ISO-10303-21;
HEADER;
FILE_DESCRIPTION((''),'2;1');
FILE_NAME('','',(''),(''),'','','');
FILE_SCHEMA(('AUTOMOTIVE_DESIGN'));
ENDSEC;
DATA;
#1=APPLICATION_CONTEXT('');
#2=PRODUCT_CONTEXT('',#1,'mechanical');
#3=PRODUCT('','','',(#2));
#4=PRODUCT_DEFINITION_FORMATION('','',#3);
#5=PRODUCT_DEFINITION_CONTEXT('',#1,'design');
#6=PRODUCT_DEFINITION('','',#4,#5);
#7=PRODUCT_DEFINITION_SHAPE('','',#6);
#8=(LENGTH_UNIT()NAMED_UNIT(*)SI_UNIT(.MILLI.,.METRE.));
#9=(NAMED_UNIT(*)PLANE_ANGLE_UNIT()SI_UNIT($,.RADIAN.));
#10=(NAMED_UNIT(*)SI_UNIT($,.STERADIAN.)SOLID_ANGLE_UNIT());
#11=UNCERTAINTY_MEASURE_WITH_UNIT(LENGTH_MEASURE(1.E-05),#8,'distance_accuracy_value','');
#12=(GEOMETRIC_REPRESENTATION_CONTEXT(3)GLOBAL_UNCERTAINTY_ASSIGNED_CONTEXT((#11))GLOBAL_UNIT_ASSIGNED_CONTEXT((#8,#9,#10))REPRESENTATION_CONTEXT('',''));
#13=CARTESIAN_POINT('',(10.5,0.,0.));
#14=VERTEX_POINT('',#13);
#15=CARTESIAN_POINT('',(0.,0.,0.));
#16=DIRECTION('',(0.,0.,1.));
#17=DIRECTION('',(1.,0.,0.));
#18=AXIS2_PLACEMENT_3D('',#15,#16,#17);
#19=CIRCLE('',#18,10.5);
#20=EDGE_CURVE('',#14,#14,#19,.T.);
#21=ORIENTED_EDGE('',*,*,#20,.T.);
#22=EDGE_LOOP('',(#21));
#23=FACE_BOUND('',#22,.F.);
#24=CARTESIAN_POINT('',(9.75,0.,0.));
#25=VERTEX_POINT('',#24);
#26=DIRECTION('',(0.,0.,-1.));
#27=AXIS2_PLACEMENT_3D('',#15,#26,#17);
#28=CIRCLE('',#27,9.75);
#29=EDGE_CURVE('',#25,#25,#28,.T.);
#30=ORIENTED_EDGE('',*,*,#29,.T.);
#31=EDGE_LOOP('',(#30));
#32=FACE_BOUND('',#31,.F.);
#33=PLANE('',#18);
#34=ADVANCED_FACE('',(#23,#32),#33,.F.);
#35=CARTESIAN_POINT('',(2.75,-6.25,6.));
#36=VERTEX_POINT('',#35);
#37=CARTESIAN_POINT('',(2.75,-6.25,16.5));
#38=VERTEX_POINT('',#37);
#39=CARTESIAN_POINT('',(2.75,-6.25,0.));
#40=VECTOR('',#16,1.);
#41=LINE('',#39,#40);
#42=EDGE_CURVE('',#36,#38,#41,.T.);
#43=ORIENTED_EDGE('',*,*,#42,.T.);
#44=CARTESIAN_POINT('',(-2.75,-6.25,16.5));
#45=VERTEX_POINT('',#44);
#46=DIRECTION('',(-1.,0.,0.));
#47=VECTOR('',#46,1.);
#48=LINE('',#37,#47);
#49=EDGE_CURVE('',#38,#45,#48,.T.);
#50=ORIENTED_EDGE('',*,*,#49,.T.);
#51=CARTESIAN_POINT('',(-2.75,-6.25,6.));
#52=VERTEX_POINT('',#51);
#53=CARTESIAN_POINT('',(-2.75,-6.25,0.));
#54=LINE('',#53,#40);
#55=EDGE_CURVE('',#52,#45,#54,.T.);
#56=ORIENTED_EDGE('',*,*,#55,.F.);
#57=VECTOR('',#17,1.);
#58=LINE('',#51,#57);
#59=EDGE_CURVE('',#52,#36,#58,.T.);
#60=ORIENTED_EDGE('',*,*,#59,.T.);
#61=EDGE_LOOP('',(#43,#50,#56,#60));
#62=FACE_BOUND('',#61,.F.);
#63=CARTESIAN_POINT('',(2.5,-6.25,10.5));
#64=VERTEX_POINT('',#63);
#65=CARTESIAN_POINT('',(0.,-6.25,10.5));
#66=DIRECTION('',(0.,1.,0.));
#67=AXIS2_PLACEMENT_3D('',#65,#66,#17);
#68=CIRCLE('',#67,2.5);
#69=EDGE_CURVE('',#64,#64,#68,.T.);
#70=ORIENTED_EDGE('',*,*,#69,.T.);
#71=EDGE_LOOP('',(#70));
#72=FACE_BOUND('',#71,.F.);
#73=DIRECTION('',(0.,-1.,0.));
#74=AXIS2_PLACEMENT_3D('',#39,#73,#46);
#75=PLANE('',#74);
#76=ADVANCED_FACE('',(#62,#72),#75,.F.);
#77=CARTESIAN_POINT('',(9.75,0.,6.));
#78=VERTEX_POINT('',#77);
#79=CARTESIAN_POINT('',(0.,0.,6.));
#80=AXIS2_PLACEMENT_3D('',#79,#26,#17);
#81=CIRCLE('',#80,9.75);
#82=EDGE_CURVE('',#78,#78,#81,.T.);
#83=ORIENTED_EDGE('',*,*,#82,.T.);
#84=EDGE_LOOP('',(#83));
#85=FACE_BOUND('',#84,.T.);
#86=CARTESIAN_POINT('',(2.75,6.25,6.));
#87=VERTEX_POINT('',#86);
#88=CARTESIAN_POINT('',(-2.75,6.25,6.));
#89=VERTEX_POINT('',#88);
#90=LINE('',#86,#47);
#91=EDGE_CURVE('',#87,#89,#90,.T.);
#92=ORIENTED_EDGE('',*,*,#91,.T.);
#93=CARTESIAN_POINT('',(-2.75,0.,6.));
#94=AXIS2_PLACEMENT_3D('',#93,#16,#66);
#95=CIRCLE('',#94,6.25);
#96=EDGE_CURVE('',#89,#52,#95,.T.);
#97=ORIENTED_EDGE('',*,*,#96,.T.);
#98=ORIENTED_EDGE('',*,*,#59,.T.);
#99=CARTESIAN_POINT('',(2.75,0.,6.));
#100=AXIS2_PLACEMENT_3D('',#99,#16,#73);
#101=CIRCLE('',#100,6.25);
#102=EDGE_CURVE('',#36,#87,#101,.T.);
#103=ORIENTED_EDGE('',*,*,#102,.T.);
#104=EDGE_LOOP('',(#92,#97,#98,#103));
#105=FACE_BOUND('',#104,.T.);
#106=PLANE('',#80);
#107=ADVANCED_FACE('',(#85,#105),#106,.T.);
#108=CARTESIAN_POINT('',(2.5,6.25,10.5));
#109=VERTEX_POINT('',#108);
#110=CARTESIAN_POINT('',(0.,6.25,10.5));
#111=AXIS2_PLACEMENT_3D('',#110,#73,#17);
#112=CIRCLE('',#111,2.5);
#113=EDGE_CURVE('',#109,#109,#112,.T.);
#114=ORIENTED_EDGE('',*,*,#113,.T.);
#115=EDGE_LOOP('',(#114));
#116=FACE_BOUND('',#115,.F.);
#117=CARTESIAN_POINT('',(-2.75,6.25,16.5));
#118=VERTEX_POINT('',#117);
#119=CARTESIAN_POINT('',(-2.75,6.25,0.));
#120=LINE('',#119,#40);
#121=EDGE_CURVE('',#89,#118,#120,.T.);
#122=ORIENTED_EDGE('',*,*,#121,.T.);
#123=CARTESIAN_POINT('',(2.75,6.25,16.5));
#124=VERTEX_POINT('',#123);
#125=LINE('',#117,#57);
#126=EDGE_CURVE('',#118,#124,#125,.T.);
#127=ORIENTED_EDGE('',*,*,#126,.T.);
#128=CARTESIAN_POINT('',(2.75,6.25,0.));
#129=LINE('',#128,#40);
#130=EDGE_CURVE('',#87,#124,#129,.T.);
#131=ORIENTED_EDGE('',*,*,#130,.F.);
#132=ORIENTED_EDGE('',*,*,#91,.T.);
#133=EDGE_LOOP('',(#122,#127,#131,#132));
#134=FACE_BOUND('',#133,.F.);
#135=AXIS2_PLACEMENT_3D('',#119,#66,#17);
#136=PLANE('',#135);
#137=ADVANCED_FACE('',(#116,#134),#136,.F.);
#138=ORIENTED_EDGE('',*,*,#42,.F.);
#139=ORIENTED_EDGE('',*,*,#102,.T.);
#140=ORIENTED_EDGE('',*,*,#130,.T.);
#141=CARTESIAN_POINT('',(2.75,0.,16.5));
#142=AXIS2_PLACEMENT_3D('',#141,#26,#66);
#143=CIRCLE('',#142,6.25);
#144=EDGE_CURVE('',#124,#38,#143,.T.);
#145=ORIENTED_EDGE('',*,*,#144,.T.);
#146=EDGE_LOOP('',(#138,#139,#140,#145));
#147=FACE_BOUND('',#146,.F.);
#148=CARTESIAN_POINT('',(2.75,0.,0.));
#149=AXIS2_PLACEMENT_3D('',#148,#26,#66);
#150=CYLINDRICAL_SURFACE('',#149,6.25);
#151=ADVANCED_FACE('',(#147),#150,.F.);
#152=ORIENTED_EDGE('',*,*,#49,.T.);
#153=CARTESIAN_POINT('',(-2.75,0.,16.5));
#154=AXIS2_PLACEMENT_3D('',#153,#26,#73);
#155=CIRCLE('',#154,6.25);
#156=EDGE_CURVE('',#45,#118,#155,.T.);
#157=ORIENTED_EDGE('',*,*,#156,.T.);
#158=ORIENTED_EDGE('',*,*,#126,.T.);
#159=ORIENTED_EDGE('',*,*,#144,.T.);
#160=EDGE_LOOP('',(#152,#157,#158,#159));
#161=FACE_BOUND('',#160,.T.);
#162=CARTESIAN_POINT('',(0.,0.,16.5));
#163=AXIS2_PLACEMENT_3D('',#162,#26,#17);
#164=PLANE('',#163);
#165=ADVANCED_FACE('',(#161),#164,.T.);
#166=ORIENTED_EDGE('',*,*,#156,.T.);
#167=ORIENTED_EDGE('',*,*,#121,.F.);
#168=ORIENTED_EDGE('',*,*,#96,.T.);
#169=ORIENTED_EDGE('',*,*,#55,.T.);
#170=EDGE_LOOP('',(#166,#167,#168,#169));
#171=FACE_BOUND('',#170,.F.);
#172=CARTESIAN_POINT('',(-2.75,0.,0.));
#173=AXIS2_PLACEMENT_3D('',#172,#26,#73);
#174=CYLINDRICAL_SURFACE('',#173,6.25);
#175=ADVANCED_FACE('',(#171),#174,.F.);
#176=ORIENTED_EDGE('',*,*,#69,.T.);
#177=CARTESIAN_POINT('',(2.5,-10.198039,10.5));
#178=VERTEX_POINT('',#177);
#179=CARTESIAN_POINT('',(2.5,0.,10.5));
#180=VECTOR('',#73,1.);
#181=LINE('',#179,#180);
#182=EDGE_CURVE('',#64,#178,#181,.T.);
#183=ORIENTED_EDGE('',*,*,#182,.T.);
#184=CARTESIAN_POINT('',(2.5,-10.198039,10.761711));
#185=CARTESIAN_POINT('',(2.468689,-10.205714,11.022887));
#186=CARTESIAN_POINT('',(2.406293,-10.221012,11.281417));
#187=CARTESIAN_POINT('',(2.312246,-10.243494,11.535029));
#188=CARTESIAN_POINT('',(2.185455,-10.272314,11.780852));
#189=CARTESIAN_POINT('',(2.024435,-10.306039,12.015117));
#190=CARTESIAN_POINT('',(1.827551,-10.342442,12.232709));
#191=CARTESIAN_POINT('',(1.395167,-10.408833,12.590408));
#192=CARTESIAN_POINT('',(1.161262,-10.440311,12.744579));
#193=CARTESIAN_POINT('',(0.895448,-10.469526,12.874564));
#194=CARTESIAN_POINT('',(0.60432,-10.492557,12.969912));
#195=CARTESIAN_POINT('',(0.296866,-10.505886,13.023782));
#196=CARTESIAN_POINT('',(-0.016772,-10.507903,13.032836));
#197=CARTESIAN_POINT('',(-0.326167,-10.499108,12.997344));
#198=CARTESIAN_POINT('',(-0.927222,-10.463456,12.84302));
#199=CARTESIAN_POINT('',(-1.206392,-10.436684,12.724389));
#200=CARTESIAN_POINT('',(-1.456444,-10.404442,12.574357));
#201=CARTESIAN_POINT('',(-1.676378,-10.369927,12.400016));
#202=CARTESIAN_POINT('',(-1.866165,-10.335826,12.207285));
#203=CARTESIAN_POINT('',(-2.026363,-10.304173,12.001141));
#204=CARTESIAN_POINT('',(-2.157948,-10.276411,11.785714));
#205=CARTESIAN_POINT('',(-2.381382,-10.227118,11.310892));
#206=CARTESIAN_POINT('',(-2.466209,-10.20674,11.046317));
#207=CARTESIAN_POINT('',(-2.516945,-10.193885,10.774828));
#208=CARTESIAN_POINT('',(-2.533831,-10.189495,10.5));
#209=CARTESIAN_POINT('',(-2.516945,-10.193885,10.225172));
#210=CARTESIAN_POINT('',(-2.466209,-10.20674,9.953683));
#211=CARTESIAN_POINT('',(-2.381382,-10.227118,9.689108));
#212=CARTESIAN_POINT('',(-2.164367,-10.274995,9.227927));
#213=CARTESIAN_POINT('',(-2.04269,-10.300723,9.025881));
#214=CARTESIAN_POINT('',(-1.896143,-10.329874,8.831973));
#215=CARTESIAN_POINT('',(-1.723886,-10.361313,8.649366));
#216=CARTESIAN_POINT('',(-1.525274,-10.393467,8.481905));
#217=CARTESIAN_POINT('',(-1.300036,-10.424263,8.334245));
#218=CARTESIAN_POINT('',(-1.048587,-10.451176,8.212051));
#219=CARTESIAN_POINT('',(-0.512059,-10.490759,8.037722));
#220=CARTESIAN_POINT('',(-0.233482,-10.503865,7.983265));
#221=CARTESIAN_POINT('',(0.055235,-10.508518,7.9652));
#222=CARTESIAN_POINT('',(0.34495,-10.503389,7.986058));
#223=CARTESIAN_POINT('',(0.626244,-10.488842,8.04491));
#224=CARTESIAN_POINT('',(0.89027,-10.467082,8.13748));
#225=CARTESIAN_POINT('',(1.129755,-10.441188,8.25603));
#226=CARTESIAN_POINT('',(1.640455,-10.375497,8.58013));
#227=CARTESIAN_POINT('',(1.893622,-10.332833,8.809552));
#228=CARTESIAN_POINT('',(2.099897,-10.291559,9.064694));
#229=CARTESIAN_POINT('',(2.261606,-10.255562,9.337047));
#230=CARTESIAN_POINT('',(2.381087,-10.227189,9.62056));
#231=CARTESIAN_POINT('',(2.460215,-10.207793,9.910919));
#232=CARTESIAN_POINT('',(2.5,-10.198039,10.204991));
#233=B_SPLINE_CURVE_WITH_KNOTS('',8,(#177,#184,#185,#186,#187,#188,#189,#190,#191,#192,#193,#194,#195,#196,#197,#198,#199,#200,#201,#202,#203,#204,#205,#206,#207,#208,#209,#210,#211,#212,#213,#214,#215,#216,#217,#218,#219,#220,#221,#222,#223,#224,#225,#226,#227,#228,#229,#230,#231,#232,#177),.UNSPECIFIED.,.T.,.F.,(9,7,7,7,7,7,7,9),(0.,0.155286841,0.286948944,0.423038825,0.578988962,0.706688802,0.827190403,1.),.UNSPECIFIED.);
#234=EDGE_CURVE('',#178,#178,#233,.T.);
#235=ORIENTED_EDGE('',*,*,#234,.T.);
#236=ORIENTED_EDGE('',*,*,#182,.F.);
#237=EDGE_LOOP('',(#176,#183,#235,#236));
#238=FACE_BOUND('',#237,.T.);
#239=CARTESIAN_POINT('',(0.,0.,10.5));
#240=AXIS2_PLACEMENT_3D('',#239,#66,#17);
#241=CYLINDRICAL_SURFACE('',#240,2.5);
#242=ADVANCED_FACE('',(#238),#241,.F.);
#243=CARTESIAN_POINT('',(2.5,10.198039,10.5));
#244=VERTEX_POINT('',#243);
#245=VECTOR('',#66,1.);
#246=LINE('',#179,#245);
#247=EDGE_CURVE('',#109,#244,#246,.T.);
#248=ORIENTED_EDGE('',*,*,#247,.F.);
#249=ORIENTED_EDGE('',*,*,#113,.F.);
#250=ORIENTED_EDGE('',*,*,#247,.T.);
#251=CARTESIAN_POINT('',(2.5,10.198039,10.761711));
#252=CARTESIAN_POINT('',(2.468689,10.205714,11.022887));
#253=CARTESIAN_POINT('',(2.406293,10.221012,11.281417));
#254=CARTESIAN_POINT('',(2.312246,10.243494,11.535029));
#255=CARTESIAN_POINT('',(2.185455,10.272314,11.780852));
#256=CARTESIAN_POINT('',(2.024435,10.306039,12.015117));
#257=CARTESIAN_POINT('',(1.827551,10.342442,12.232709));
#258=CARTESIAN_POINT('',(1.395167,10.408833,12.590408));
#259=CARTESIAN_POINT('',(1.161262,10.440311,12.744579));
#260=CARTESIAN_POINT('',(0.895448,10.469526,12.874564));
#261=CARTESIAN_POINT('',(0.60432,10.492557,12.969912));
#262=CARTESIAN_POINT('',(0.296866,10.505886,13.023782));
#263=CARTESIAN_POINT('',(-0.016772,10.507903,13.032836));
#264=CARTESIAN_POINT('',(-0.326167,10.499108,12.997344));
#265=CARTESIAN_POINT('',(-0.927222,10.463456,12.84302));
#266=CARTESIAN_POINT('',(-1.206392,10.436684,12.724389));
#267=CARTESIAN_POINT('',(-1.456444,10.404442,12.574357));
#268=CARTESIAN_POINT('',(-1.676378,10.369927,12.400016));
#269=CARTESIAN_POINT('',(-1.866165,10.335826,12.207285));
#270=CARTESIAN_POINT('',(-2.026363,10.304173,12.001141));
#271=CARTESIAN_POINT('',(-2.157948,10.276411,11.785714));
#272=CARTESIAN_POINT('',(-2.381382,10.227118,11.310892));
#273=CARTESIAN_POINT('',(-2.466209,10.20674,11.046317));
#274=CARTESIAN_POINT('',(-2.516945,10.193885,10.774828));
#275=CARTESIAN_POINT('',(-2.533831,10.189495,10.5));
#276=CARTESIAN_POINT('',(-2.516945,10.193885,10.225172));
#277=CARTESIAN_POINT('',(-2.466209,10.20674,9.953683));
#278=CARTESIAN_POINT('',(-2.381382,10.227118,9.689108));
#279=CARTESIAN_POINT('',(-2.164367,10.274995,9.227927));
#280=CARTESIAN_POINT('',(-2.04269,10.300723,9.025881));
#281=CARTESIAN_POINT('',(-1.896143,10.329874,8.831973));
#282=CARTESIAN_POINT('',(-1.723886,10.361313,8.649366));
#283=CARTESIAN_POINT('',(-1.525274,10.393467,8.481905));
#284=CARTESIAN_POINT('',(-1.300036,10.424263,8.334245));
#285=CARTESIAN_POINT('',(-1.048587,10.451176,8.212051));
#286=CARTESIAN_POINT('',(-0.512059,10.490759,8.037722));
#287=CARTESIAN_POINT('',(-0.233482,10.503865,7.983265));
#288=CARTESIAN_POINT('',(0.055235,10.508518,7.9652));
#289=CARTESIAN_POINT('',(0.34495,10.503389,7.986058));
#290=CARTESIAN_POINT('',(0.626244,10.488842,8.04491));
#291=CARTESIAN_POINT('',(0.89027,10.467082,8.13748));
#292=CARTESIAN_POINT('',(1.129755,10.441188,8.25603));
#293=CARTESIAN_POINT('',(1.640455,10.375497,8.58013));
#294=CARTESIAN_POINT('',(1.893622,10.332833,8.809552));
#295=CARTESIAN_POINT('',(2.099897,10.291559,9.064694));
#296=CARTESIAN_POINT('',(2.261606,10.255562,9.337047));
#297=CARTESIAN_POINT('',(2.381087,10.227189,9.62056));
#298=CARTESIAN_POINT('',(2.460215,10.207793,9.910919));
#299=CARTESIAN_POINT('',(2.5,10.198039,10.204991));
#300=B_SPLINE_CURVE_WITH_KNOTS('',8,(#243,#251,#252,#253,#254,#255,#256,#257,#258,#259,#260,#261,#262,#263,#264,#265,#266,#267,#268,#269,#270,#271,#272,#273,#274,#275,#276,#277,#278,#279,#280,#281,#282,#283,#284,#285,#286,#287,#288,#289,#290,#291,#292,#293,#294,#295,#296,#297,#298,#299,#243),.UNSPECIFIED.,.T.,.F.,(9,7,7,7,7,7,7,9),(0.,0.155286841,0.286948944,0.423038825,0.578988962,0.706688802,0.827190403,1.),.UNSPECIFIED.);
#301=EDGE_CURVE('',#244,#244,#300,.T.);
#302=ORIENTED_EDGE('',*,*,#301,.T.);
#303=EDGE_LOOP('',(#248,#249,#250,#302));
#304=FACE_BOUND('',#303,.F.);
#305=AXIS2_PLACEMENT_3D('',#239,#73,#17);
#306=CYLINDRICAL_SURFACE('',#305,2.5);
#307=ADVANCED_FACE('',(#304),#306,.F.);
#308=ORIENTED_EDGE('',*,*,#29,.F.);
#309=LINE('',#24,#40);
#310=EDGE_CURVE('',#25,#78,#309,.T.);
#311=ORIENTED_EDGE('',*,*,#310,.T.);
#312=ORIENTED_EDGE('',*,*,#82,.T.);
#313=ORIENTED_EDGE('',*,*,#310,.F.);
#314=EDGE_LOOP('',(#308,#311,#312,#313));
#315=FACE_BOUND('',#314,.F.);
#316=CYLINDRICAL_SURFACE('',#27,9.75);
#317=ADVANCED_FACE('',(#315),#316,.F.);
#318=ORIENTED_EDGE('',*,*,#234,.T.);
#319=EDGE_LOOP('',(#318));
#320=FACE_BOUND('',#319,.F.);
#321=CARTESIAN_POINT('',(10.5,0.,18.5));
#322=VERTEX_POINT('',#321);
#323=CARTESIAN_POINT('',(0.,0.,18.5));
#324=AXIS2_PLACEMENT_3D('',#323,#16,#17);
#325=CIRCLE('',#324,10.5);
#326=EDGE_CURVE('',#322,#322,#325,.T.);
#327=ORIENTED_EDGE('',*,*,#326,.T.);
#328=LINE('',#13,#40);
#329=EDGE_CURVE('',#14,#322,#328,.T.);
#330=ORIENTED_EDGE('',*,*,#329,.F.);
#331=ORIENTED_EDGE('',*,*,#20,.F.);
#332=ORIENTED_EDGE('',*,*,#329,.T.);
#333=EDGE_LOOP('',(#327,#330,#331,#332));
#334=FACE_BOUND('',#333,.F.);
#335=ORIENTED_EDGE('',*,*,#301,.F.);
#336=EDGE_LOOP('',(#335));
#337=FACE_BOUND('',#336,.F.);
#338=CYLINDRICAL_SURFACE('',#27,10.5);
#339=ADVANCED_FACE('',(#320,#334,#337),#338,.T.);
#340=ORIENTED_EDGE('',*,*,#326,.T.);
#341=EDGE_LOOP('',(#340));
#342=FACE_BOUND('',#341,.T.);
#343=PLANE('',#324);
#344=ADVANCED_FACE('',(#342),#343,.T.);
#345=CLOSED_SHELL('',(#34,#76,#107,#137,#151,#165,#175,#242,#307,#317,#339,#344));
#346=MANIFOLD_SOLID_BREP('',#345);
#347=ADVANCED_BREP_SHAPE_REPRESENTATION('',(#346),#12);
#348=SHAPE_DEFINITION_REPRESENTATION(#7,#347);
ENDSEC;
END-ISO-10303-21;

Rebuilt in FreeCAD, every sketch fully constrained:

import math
import FreeCAD as App
import Part
import Sketcher
from FreeCAD import Vector
Q = App.Units.Quantity

doc = App.newDocument("Part")
params = doc.addObject("Spreadsheet::Sheet", "Params")
for row, (alias, value) in enumerate([
    ("sketch1_diameter", "21 mm"),
    ("pad1_length", "18.5 mm"),
    ("sketch2_radius", "6.25 mm"),
    ("sketch2_width", "5.5 mm"),
    ("pocket1_length", "16.5 mm"),
    ("sketch3_diameter", "19.5 mm"),
    ("sketch3_radius", "6.25 mm"),
    ("sketch3_width", "5.5 mm"),
    ("pocket2_length", "6 mm"),
    ("sketch4_diameter", "5 mm"),
], start=1):
    params.set(f"A{row}", alias)
    params.set(f"B{row}", "=" + value)
    params.setAlias(f"B{row}", alias)

body = doc.addObject("PartDesign::Body", "Body")

sketch1 = body.newObject("Sketcher::SketchObject", "Sketch")
sketch1.AttachmentSupport = (doc.getObject("XY_Plane"), [""])
sketch1.MapMode = "FlatFace"
sketch1.addGeometry(Part.Circle(Vector(0, 0, 0), Vector(0, 0, 1), 10), False)
sketch1.addConstraint([
    Sketcher.Constraint("Coincident", 0, 3, -1, 1),
    Sketcher.Constraint("Diameter", 0, Q("21 mm")),
])
sketch1.setExpression("Constraints[1]", "Params.sketch1_diameter")
pad1 = body.newObject("PartDesign::Pad", "Pad")
pad1.Profile = sketch1
pad1.setExpression("Length", "Params.pad1_length")

sketch2 = body.newObject("Sketcher::SketchObject", "Sketch001")
sketch2.AttachmentSupport = (doc.getObject("XY_Plane"), [""])
sketch2.MapMode = "FlatFace"
sketch2.addGeometry([
    Part.LineSegment(Vector(3, -6, 0), Vector(-3, -6, 0)),
    Part.ArcOfCircle(Part.Circle(Vector(-3, 0, 0), Vector(0, 0, 1), 6), math.radians(90), math.radians(270)),
    Part.LineSegment(Vector(-3, 6, 0), Vector(3, 6, 0)),
    Part.ArcOfCircle(Part.Circle(Vector(3, 0, 0), Vector(0, 0, 1), 6), math.radians(-90), math.radians(90)),
], False)
sketch2.addConstraint([
    Sketcher.Constraint("Tangent", 0, 2, 1, 2),
    Sketcher.Constraint("Tangent", 1, 1, 2, 1),
    Sketcher.Constraint("Tangent", 2, 2, 3, 2),
    Sketcher.Constraint("Tangent", 3, 1, 0, 1),
    Sketcher.Constraint("Horizontal", 0),
    Sketcher.Constraint("Horizontal", 2),
    Sketcher.Constraint("Symmetric", 1, 3, 3, 3, -1, 1),
    Sketcher.Constraint("Radius", 1, Q("6.25 mm")),
    Sketcher.Constraint("DistanceX", 0, 2, 0, 1, Q("5.5 mm")),
])
sketch2.setExpression("Constraints[7]", "Params.sketch2_radius")
sketch2.setExpression("Constraints[8]", "Params.sketch2_width")
pocket1 = body.newObject("PartDesign::Pocket", "Pocket")
pocket1.Profile = sketch2
pocket1.setExpression("Length", "Params.pocket1_length")
pocket1.Reversed = True

sketch3 = body.newObject("Sketcher::SketchObject", "Sketch002")
sketch3.AttachmentSupport = (doc.getObject("XY_Plane"), [""])
sketch3.MapMode = "FlatFace"
sketch3.addGeometry([
    Part.Circle(Vector(0, 0, 0), Vector(0, 0, 1), 10),
    Part.ArcOfCircle(Part.Circle(Vector(-3, 0, 0), Vector(0, 0, 1), 6), math.radians(90), math.radians(270)),
    Part.LineSegment(Vector(-3, -6, 0), Vector(3, -6, 0)),
    Part.ArcOfCircle(Part.Circle(Vector(3, 0, 0), Vector(0, 0, 1), 6), math.radians(-90), math.radians(90)),
    Part.LineSegment(Vector(3, 6, 0), Vector(-3, 6, 0)),
], False)
sketch3.addConstraint([
    Sketcher.Constraint("Tangent", 1, 2, 2, 1),
    Sketcher.Constraint("Tangent", 2, 2, 3, 1),
    Sketcher.Constraint("Tangent", 3, 2, 4, 1),
    Sketcher.Constraint("Tangent", 4, 2, 1, 1),
    Sketcher.Constraint("Horizontal", 2),
    Sketcher.Constraint("Horizontal", 4),
    Sketcher.Constraint("Coincident", 0, 3, -1, 1),
    Sketcher.Constraint("Symmetric", 1, 3, 3, 3, -1, 1),
    Sketcher.Constraint("Diameter", 0, Q("19.5 mm")),
    Sketcher.Constraint("Radius", 1, Q("6.25 mm")),
    Sketcher.Constraint("DistanceX", 2, 1, 2, 2, Q("5.5 mm")),
])
sketch3.setExpression("Constraints[8]", "Params.sketch3_diameter")
sketch3.setExpression("Constraints[9]", "Params.sketch3_radius")
sketch3.setExpression("Constraints[10]", "Params.sketch3_width")
pocket2 = body.newObject("PartDesign::Pocket", "Pocket001")
pocket2.Profile = sketch3
pocket2.setExpression("Length", "Params.pocket2_length")
pocket2.Reversed = True

sketch4 = body.newObject("Sketcher::SketchObject", "Sketch003")
sketch4.AttachmentSupport = (doc.getObject("XZ_Plane"), [""])
sketch4.MapMode = "FlatFace"
sketch4.addGeometry(Part.Circle(Vector(0, 10.5, 0), Vector(0, 0, 1), 2.5), False)
sketch4.addConstraint([
    Sketcher.Constraint("PointOnObject", 0, 3, -2),
    Sketcher.Constraint("Diameter", 0, Q("5 mm")),
    Sketcher.Constraint("DistanceY", -1, 1, 0, 3, Q("10.5 mm")),
])
sketch4.setExpression("Constraints[1]", "Params.sketch4_diameter")
pocket3 = body.newObject("PartDesign::Pocket", "Pocket002")
pocket3.Profile = sketch4
pocket3.Type = "ThroughAll"
pocket3.Midplane = True

doc.recompute()
